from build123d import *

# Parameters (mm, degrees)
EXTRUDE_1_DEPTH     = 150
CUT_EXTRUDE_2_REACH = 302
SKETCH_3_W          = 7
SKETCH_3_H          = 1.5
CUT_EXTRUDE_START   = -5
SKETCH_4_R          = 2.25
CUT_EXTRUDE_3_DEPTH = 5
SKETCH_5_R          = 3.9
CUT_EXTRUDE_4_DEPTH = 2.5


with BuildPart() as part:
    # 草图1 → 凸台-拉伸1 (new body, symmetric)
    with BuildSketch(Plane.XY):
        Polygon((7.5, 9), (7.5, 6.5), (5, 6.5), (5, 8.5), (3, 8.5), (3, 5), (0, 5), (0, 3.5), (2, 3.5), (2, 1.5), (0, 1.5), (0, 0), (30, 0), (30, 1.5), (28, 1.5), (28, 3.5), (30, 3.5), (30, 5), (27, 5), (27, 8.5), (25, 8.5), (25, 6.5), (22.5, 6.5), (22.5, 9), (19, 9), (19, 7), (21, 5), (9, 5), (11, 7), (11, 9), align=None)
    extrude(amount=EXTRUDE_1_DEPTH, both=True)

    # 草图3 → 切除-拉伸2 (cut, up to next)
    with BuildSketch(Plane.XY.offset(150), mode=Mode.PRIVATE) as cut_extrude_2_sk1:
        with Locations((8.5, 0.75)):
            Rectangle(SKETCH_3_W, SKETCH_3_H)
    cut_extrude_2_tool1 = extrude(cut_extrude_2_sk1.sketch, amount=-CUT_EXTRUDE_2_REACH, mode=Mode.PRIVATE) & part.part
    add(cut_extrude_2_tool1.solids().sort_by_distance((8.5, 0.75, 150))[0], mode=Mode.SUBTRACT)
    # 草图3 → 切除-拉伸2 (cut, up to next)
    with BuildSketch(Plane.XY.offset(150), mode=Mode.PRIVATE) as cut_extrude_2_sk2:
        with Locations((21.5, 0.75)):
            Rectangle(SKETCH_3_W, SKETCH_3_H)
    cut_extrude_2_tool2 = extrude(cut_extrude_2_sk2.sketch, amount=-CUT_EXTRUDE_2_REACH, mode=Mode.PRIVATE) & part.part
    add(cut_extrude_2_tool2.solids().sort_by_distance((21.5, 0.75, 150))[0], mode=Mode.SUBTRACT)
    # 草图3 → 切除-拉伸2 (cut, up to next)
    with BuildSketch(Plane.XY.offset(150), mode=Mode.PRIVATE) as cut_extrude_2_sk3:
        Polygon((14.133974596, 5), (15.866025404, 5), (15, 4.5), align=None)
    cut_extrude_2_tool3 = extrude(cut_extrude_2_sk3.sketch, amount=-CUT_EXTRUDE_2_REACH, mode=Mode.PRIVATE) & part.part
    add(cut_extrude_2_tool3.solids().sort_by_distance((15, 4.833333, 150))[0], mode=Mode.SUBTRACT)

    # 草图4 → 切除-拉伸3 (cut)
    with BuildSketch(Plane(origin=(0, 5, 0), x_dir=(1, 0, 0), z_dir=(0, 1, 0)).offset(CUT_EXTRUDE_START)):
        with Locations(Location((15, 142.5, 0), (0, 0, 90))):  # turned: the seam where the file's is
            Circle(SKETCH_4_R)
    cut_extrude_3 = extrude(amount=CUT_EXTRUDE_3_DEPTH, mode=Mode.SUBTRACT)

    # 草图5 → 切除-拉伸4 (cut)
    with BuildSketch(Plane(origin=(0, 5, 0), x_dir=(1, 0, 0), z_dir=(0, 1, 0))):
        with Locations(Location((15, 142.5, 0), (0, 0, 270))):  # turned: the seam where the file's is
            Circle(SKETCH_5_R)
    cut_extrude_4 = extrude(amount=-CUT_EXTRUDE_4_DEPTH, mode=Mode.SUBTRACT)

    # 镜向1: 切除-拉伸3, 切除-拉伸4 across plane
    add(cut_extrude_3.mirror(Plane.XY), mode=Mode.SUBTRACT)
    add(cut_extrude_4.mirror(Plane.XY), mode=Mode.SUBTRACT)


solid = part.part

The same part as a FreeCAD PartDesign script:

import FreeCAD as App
import Part
import Sketcher

V = App.Vector
Q = App.Units.Quantity


def add_polygon(sketch, points):
    """Adds a closed chain of lines whose ends are joined by coincident constraints."""
    first, n = sketch.GeometryCount, len(points)
    for a, b in zip(points, points[1:] + points[:1]):
        sketch.addGeometry(Part.LineSegment(App.Vector(*a, 0), App.Vector(*b, 0)), False)
    for i in range(n):
        sketch.addConstraint(Sketcher.Constraint("Coincident", first + i, 2, first + (i + 1) % n, 1))

doc = App.newDocument("Part")
body = doc.addObject("PartDesign::Body", "Body")

# Sketch on XY plane
sketch1 = body.newObject("Sketcher::SketchObject", "Sketch")
sketch1.AttachmentSupport = (doc.getObject("XY_Plane"), [""])
sketch1.MapMode = "FlatFace"
add_polygon(sketch1, [(7.5, 9), (7.5, 6.5), (5, 6.5), (5, 8.5), (3, 8.5), (3, 5), (0, 5), (0, 3.5), (2, 3.5), (2, 1.5), (0, 1.5), (0, 0), (30, 0), (30, 1.5), (28, 1.5), (28, 3.5), (30, 3.5), (30, 5), (27, 5), (27, 8.5), (25, 8.5), (25, 6.5), (22.5, 6.5), (22.5, 9), (19, 9), (19, 7), (21, 5), (9, 5), (11, 7), (11, 9)])  # lines 0-29
sketch1.addConstraint([
    Sketcher.Constraint("Vertical", 0),
    Sketcher.Constraint("Horizontal", 1),
    Sketcher.Constraint("Vertical", 2),
    Sketcher.Constraint("Horizontal", 3),
    Sketcher.Constraint("Vertical", 4),
    Sketcher.Constraint("Horizontal", 5),
    Sketcher.Constraint("Vertical", 6),
    Sketcher.Constraint("Horizontal", 7),
    Sketcher.Constraint("Vertical", 8),
    Sketcher.Constraint("Horizontal", 9),
    Sketcher.Constraint("Vertical", 10),
    Sketcher.Constraint("Horizontal", 11),
    Sketcher.Constraint("Vertical", 12),
    Sketcher.Constraint("Horizontal", 13),
    Sketcher.Constraint("Vertical", 14),
    Sketcher.Constraint("Horizontal", 15),
    Sketcher.Constraint("Vertical", 16),
    Sketcher.Constraint("Horizontal", 17),
    Sketcher.Constraint("Vertical", 18),
    Sketcher.Constraint("Horizontal", 19),
    Sketcher.Constraint("Vertical", 20),
    Sketcher.Constraint("Horizontal", 21),
    Sketcher.Constraint("Vertical", 22),
    Sketcher.Constraint("Horizontal", 23),
    Sketcher.Constraint("Vertical", 24),
    Sketcher.Constraint("Horizontal", 26),
    Sketcher.Constraint("Vertical", 28),
    Sketcher.Constraint("Horizontal", 29),
    Sketcher.Constraint("Coincident", 10, 2, -1, 1),
    Sketcher.Constraint("PointOnObject", 5, 2, -2),
    Sketcher.Constraint("Perpendicular", 25, 27),
    Sketcher.Constraint("Horizontal", 9, 2, 12, 2),
    Sketcher.Constraint("Horizontal", 7, 2, 14, 2),
    Sketcher.Constraint("Horizontal", 5, 2, 16, 2),
    Sketcher.Constraint("Horizontal", 3, 2, 18, 2),
    Sketcher.Constraint("Horizontal", 1, 2, 20, 2),
    Sketcher.Constraint("Horizontal", 17, 2, 25, 2),
    Sketcher.Constraint("Horizontal", 24, 2, 27, 2),
    Sketcher.Constraint("Horizontal", 23, 2, 28, 2),
    Sketcher.Constraint("Vertical", 12, 2, 15, 2),
    Sketcher.Constraint("Equal", 3, 7),
    Sketcher.Constraint("Equal", 9, 13),
    Sketcher.Constraint("Equal", 5, 17),
    Sketcher.Constraint("Equal", 15, 19),
    Sketcher.Constraint("Equal", 1, 21),
    Sketcher.Constraint("Equal", 23, 29),
    Sketcher.Constraint("Equal", 21, 0),
    Sketcher.Constraint("Equal", 19, 2),
    Sketcher.Constraint("Equal", 29, 4),
    Sketcher.Constraint("Equal", 2, 8),
    Sketcher.Constraint("Equal", 6, 10),
    Sketcher.Constraint("Equal", 20, 24),
    Sketcher.Constraint("Equal", 25, 27),
    Sketcher.Constraint("DistanceX", 3, 2, 3, 1, 2.0),
    Sketcher.Constraint("DistanceX", 5, 2, 5, 1, 3.0),
    Sketcher.Constraint("DistanceX", 11, 1, 11, 2, 30.0),
    Sketcher.Constraint("DistanceX", 1, 2, 1, 1, 2.5),
    Sketcher.Constraint("DistanceX", 23, 2, 23, 1, 3.5),
    Sketcher.Constraint("DistanceY", 6, 2, 6, 1, 1.5),
])
pad1 = body.newObject("PartDesign::Pad", "Pad")
pad1.Profile = sketch1
pad1.Length = 300
pad1.Midplane = True

# Sketch on XY plane
sketch2 = body.newObject("Sketcher::SketchObject", "Sketch001")
sketch2.AttachmentSupport = (doc.getObject("XY_Plane"), [""])
sketch2.MapMode = "FlatFace"
sketch2.AttachmentOffset = App.Placement(V(0, 0, 150), App.Rotation())
add_polygon(sketch2, [(5, 1.5), (5, 0), (12, 0), (12, 1.5)])  # lines 0-3
sketch2.addConstraint([
    Sketcher.Constraint("Vertical", 0),
    Sketcher.Constraint("Horizontal", 1),
    Sketcher.Constraint("Vertical", 2),
    Sketcher.Constraint("Horizontal", 3),
    Sketcher.Constraint("PointOnObject", 0, 2, -1),
    Sketcher.Constraint("DistanceX", 1, 1, 1, 2, 7.0),
    Sketcher.Constraint("DistanceY", 0, 2, 0, 1, 1.5),
    Sketcher.Constraint("DistanceX", -1, 1, 0, 2, 5.0),
])
pocket1 = body.newObject("PartDesign::Pocket", "Pocket")
pocket1.Profile = sketch2
pocket1.Type = "UpToFirst"

# Sketch on XY plane
sketch3 = body.newObject("Sketcher::SketchObject", "Sketch002")
sketch3.AttachmentSupport = (doc.getObject("XY_Plane"), [""])
sketch3.MapMode = "FlatFace"
sketch3.AttachmentOffset = App.Placement(V(0, 0, 150), App.Rotation())
add_polygon(sketch3, [(18, 1.5), (18, 0), (25, 0), (25, 1.5)])  # lines 0-3
sketch3.addConstraint([
    Sketcher.Constraint("Vertical", 0),
    Sketcher.Constraint("Horizontal", 1),
    Sketcher.Constraint("Vertical", 2),
    Sketcher.Constraint("Horizontal", 3),
    Sketcher.Constraint("PointOnObject", 0, 2, -1),
    Sketcher.Constraint("DistanceX", 1, 1, 1, 2, 7.0),
    Sketcher.Constraint("DistanceY", 0, 2, 0, 1, 1.5),
    Sketcher.Constraint("DistanceX", -1, 1, 0, 2, 18.0),
])
pocket2 = body.newObject("PartDesign::Pocket", "Pocket001")
pocket2.Profile = sketch3
pocket2.Type = "UpToFirst"

# Sketch on XY plane
sketch4 = body.newObject("Sketcher::SketchObject", "Sketch003")
sketch4.AttachmentSupport = (doc.getObject("XY_Plane"), [""])
sketch4.MapMode = "FlatFace"
sketch4.AttachmentOffset = App.Placement(V(0, 0, 150), App.Rotation())
add_polygon(sketch4, [(15.9, 5), (14.1, 5), (15, 4.5)])  # lines 0-2
sketch4.addConstraint([
    Sketcher.Constraint("Horizontal", 0),
    Sketcher.Constraint("Equal", 1, 2),
    Sketcher.Constraint("Angle", 1, Q("-30 deg")),
    Sketcher.Constraint("Distance", 1, 1.0),
    Sketcher.Constraint("DistanceY", -1, 1, 0, 2, 5.0),
    Sketcher.Constraint("DistanceX", -1, 1, 1, 2, 15.0),
])
pocket3 = body.newObject("PartDesign::Pocket", "Pocket002")
pocket3.Profile = sketch4
pocket3.Type = "UpToFirst"

# Sketch on XZ plane
sketch5 = body.newObject("Sketcher::SketchObject", "Sketch004")
sketch5.AttachmentSupport = (doc.getObject("XZ_Plane"), [""])
sketch5.MapMode = "FlatFace"
sketch5.addGeometry(Part.Circle(V(15, -142.5, 0), V(0, 0, 1), 2.2), False)
sketch5.addConstraint([
    Sketcher.Constraint("Diameter", 0, 4.5),
    Sketcher.Constraint("DistanceX", -1, 1, 0, 3, 15.0),
    Sketcher.Constraint("DistanceY", 0, 3, -1, 1, 142.5),
])
pocket4 = body.newObject("PartDesign::Pocket", "Pocket003")
pocket4.Profile = sketch5
pocket4.Length = 5

# Sketch on XZ plane
sketch6 = body.newObject("Sketcher::SketchObject", "Sketch005")
sketch6.AttachmentSupport = (doc.getObject("XZ_Plane"), [""])
sketch6.MapMode = "FlatFace"
sketch6.AttachmentOffset = App.Placement(V(0, 0, -5), App.Rotation())
sketch6.addGeometry(Part.Circle(V(15, -142.5, 0), V(0, 0, 1), 3.9), False)
sketch6.addConstraint([
    Sketcher.Constraint("Diameter", 0, 7.8),
    Sketcher.Constraint("DistanceX", -1, 1, 0, 3, 15.0),
    Sketcher.Constraint("DistanceY", 0, 3, -1, 1, 142.5),
])
pocket5 = body.newObject("PartDesign::Pocket", "Pocket004")
pocket5.Profile = sketch6
pocket5.Length = 2.5
pocket5.Reversed = True
doc.recompute()

mirrored = body.newObject("PartDesign::Mirrored", "Mirrored")
mirrored.Originals = [pocket4, pocket5]
mirrored.MirrorPlane = (doc.getObject("XY_Plane"), [""])
body.Tip = mirrored

doc.recompute()
